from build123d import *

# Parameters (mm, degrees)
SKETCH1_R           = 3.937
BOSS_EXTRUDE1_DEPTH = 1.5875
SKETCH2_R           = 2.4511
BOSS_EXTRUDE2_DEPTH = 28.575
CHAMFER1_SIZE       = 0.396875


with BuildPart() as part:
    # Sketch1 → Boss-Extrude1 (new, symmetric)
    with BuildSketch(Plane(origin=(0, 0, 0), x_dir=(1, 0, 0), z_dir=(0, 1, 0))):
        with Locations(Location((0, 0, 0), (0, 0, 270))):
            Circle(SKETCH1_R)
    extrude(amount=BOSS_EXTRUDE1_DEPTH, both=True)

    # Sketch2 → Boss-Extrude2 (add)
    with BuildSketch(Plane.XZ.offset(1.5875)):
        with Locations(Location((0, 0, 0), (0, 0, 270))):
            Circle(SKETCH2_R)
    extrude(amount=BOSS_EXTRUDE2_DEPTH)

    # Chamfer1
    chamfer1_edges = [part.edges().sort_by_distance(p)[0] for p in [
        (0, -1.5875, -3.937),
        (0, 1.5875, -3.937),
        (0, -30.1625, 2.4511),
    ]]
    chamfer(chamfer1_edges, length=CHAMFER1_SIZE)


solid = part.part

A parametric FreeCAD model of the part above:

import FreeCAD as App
import Part
import Sketcher
from FreeCAD import Vector
Q = App.Units.Quantity


def edges_at(feature, points):
    """Names of the edges that pass closest to the given points."""
    edges = feature.Shape.Edges
    near = lambda p: min(range(len(edges)), key=lambda i: edges[i].distToShape(Part.Vertex(*p))[0])
    return sorted({f"Edge{near(p) + 1}" for p in points})

doc = App.newDocument("Part")
body = doc.addObject("PartDesign::Body", "Body")

# Sketch on XZ plane
sketch1 = body.newObject("Sketcher::SketchObject", "Sketch")
sketch1.AttachmentSupport = (doc.getObject("XZ_Plane"), [""])
sketch1.MapMode = "FlatFace"
sketch1.addGeometry(Part.Circle(Vector(0, 0, 0), Vector(0, 0, 1), 3.9), False)
sketch1.addConstraint([
    Sketcher.Constraint("Coincident", 0, 3, -1, 1),
    Sketcher.Constraint("Diameter", 0, Q("0.31 in")),
])
pad1 = body.newObject("PartDesign::Pad", "Pad")
pad1.Profile = sketch1
pad1.Length = Q("0.125 in")
pad1.Midplane = True

# Sketch on XZ plane
sketch2 = body.newObject("Sketcher::SketchObject", "Sketch001")
sketch2.AttachmentSupport = (doc.getObject("XZ_Plane"), [""])
sketch2.MapMode = "FlatFace"
sketch2.AttachmentOffset = App.Placement(Vector(0, 0, 0.0625 * 25.4), App.Rotation())
sketch2.addGeometry(Part.Circle(Vector(0, 0, 0), Vector(0, 0, 1), 2.5), False)
sketch2.addConstraint([
    Sketcher.Constraint("Coincident", 0, 3, -1, 1),
    Sketcher.Constraint("Diameter", 0, Q("0.193 in")),
])
pad2 = body.newObject("PartDesign::Pad", "Pad001")
pad2.Profile = sketch2
pad2.Length = Q("1.125 in")
doc.recompute()

chamfer = body.newObject("PartDesign::Chamfer", "Chamfer")
chamfer.Base = (pad2, edges_at(pad2, [(0, -1.587, -3.937), (0, 1.587, -3.937), (0, -30.163, 2.451)]))
chamfer.Size = Q("0.015625 in")

doc.recompute()
